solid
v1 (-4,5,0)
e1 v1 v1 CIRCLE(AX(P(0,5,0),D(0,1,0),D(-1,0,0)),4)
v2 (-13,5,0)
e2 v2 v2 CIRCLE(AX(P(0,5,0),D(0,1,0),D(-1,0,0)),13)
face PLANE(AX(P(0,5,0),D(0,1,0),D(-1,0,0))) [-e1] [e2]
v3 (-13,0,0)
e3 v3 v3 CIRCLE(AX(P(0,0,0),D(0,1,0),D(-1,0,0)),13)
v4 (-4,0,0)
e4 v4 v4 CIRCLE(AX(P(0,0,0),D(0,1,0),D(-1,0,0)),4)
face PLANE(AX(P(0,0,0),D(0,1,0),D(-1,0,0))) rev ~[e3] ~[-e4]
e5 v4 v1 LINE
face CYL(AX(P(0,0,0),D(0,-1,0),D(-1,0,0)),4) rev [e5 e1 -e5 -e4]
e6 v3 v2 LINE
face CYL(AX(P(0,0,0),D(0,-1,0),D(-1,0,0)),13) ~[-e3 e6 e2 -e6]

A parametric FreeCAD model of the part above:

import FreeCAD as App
import Part
import Sketcher

V = App.Vector

doc = App.newDocument("Part")
body = doc.addObject("PartDesign::Body", "Body")

# Sketch on XZ plane
sketch1 = body.newObject("Sketcher::SketchObject", "Sketch")
sketch1.AttachmentSupport = (doc.getObject("XZ_Plane"), [""])
sketch1.MapMode = "FlatFace"
sketch1.addGeometry([
    Part.Circle(V(0, 0, 0), V(0, 0, 1), 13),
    Part.Circle(V(0, 0, 0), V(0, 0, 1), 4),
], False)
sketch1.addConstraint([
    Sketcher.Constraint("Coincident", 0, 3, -1, 1),
    Sketcher.Constraint("Coincident", 1, 3, -1, 1),
    Sketcher.Constraint("Diameter", 0, 26.0),
    Sketcher.Constraint("Diameter", 1, 8.0),
])
pad1 = body.newObject("PartDesign::Pad", "Pad")
pad1.Profile = sketch1
pad1.Length = 5
pad1.Reversed = True

doc.recompute()
